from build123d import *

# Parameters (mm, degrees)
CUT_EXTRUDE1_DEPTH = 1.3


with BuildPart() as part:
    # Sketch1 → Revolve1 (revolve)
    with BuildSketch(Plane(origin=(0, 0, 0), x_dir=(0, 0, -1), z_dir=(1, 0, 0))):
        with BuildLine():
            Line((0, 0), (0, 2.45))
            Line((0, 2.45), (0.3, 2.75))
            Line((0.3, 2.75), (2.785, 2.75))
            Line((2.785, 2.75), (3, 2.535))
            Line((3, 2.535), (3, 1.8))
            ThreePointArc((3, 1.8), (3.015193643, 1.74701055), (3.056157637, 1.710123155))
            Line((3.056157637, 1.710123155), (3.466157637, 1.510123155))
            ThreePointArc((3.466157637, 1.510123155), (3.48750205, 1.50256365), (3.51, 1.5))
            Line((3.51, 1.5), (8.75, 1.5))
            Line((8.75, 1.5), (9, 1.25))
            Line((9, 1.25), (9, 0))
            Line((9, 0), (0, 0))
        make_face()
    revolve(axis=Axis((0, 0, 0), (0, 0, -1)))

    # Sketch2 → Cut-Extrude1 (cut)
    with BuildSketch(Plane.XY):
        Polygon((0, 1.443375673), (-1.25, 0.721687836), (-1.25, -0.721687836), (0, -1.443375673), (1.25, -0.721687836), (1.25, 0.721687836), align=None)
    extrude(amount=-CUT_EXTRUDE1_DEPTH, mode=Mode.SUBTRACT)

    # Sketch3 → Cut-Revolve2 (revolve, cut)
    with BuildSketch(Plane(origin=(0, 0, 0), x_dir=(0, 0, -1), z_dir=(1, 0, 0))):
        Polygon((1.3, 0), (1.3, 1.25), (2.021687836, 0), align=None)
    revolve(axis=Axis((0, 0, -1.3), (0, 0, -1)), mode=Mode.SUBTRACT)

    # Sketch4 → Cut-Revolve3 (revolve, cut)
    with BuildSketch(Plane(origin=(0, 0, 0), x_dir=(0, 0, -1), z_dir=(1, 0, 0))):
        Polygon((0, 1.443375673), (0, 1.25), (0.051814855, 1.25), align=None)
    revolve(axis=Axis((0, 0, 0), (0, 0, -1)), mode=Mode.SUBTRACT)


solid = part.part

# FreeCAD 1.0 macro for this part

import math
import FreeCAD as App
import Part
import Sketcher
Q = App.Units.Quantity


def add_polygon(sketch, points):
    """Adds a closed chain of lines whose ends are joined by coincident constraints."""
    first, n = sketch.GeometryCount, len(points)
    for a, b in zip(points, points[1:] + points[:1]):
        sketch.addGeometry(Part.LineSegment(App.Vector(*a, 0), App.Vector(*b, 0)), False)
    for i in range(n):
        sketch.addConstraint(Sketcher.Constraint("Coincident", first + i, 2, first + (i + 1) % n, 1))

doc = App.newDocument("Part")
body = doc.addObject("PartDesign::Body", "Body")

# Sketch on YZ plane
sketch1 = body.newObject("Sketcher::SketchObject", "Sketch")
sketch1.AttachmentSupport = (doc.getObject("YZ_Plane"), [""])
sketch1.MapMode = "FlatFace"
sketch1.addGeometry([
    Part.LineSegment(App.Vector(2.45, 0, 0), App.Vector(0, 0, 0)),  # 0
    Part.LineSegment(App.Vector(0, 0, 0), App.Vector(0, -9, 0)),  # 1
    Part.LineSegment(App.Vector(0, -9, 0), App.Vector(1.25, -9, 0)),  # 2
    Part.LineSegment(App.Vector(1.25, -9, 0), App.Vector(1.5, -8.75, 0)),  # 3
    Part.LineSegment(App.Vector(1.5, -8.75, 0), App.Vector(1.5, -3.51, 0)),  # 4
    Part.ArcOfCircle(Part.Circle(App.Vector(1.6, -3.51, 0), App.Vector(0, 0, 1), 0.1), math.radians(154), math.radians(180)),  # 5
    Part.LineSegment(App.Vector(1.51, -3.466, 0), App.Vector(1.71, -3.056, 0)),  # 6
    Part.ArcOfCircle(Part.Circle(App.Vector(1.8, -3.1, 0), App.Vector(0, 0, 1), 0.1), math.radians(90), math.radians(154)),  # 7
    Part.LineSegment(App.Vector(1.8, -3, 0), App.Vector(2.535, -3, 0)),  # 8
    Part.LineSegment(App.Vector(2.535, -3, 0), App.Vector(2.75, -2.785, 0)),  # 9
    Part.LineSegment(App.Vector(2.75, -2.785, 0), App.Vector(2.75, -0.3, 0)),  # 10
    Part.LineSegment(App.Vector(2.75, -0.3, 0), App.Vector(2.45, 0, 0)),  # 11
], False)
sketch1.addConstraint([
    Sketcher.Constraint("Coincident", 0, 2, 1, 1),
    Sketcher.Constraint("Coincident", 1, 2, 2, 1),
    Sketcher.Constraint("Coincident", 2, 2, 3, 1),
    Sketcher.Constraint("Coincident", 3, 2, 4, 1),
    Sketcher.Constraint("Tangent", 4, 2, 5, 2),
    Sketcher.Constraint("Tangent", 5, 1, 6, 1),
    Sketcher.Constraint("Tangent", 6, 2, 7, 2),
    Sketcher.Constraint("Tangent", 7, 1, 8, 1),
    Sketcher.Constraint("Coincident", 8, 2, 9, 1),
    Sketcher.Constraint("Coincident", 9, 2, 10, 1),
    Sketcher.Constraint("Coincident", 10, 2, 11, 1),
    Sketcher.Constraint("Coincident", 11, 2, 0, 1),
    Sketcher.Constraint("Horizontal", 0),
    Sketcher.Constraint("Vertical", 1),
    Sketcher.Constraint("Horizontal", 2),
    Sketcher.Constraint("Vertical", 4),
    Sketcher.Constraint("Horizontal", 8),
    Sketcher.Constraint("Vertical", 10),
    Sketcher.Constraint("Coincident", 0, 2, -1, 1),
    Sketcher.Constraint("Equal", 5, 7),
    Sketcher.Constraint("Parallel", 3, 9),
    Sketcher.Constraint("Perpendicular", 9, 11),
    Sketcher.Constraint("Radius", 5, 0.1),
    Sketcher.Constraint("DistanceY", 1, 2, 1, 1, 9.0),
    Sketcher.Constraint("Angle", 3, Q("45 deg")),
    Sketcher.Constraint("DistanceY", 7, 1, -1, 1, 3.0),
    Sketcher.Constraint("DistanceX", 0, 2, 0, 1, 2.45),
    Sketcher.Constraint("DistanceX", 2, 1, 2, 2, 1.25),
    Sketcher.Constraint("DistanceY", 4, 1, 4, 2, 5.24),
    Sketcher.Constraint("DistanceX", -1, 1, 5, 3, 1.6),
    Sketcher.Constraint("DistanceX", -1, 1, 7, 3, 1.8),
    Sketcher.Constraint("DistanceY", 10, 2, -1, 1, 0.3),
    Sketcher.Constraint("DistanceX", 8, 1, 8, 2, 0.735),
])
revolution = body.newObject("PartDesign::Revolution", "Revolution")
revolution.Profile = sketch1
revolution.ReferenceAxis = (sketch1, ["V_Axis"])
revolution.Angle = 360

# Sketch on XY plane
sketch2 = body.newObject("Sketcher::SketchObject", "Sketch001")
sketch2.AttachmentSupport = (doc.getObject("XY_Plane"), [""])
sketch2.MapMode = "FlatFace"
add_polygon(sketch2, [(0, 1.4), (-1.2, 0.7), (-1.2, -0.7), (0, -1.4), (1.2, -0.7), (1.2, 0.7)])  # lines 0-5
sketch2.addConstraint([
    Sketcher.Constraint("Vertical", 1),
    Sketcher.Constraint("Vertical", 4),
    Sketcher.Constraint("Symmetric", 0, 2, 3, 2, -1, 1),
    Sketcher.Constraint("Symmetric", 2, 2, 5, 2, -1, 1),
    Sketcher.Constraint("PointOnObject", 2, 2, -2),
    Sketcher.Constraint("Parallel", 2, 5),
    Sketcher.Constraint("Horizontal", 1, 2, 3, 2),
    Sketcher.Constraint("Angle", 0, Q("-150 deg")),
    Sketcher.Constraint("DistanceX", 1, 2, 3, 2, 2.5),
    Sketcher.Constraint("DistanceY", 1, 2, 1, 1, 1.443376),
])
pocket1 = body.newObject("PartDesign::Pocket", "Pocket")
pocket1.Profile = sketch2
pocket1.Length = 1.3

# Sketch on YZ plane
sketch3 = body.newObject("Sketcher::SketchObject", "Sketch002")
sketch3.AttachmentSupport = (doc.getObject("YZ_Plane"), [""])
sketch3.MapMode = "FlatFace"
add_polygon(sketch3, [(1.2, -1.3), (0, -1.3), (0, -2)])  # lines 0-2
sketch3.addConstraint([
    Sketcher.Constraint("Horizontal", 0),
    Sketcher.Constraint("Vertical", 1),
    Sketcher.Constraint("PointOnObject", 0, 2, -2),
    Sketcher.Constraint("Angle", 2, Q("30 deg")),
    Sketcher.Constraint("DistanceX", 0, 2, 0, 1, 1.25),
    Sketcher.Constraint("DistanceY", 0, 2, -1, 1, 1.3),
])
groove = body.newObject("PartDesign::Groove", "Groove")
groove.Profile = sketch3
groove.ReferenceAxis = (sketch3, ["V_Axis"])
groove.Angle = 360

# Sketch on YZ plane
sketch4 = body.newObject("Sketcher::SketchObject", "Sketch003")
sketch4.AttachmentSupport = (doc.getObject("YZ_Plane"), [""])
sketch4.MapMode = "FlatFace"
add_polygon(sketch4, [(1.44, 0), (1.25, 0), (1.25, -0.05)])  # lines 0-2
sketch4.addConstraint([
    Sketcher.Constraint("Horizontal", 0),
    Sketcher.Constraint("Vertical", 1),
    Sketcher.Constraint("PointOnObject", 0, 2, -1),
    Sketcher.Constraint("Angle", 2, Q("15 deg")),
    Sketcher.Constraint("DistanceX", -1, 1, 0, 2, 1.25),
    Sketcher.Constraint("DistanceX", 0, 2, 0, 1, 0.193376),
])
groove2 = body.newObject("PartDesign::Groove", "Groove001")
groove2.Profile = sketch4
groove2.ReferenceAxis = (sketch4, ["V_Axis"])
groove2.Angle = 360

doc.recompute()
